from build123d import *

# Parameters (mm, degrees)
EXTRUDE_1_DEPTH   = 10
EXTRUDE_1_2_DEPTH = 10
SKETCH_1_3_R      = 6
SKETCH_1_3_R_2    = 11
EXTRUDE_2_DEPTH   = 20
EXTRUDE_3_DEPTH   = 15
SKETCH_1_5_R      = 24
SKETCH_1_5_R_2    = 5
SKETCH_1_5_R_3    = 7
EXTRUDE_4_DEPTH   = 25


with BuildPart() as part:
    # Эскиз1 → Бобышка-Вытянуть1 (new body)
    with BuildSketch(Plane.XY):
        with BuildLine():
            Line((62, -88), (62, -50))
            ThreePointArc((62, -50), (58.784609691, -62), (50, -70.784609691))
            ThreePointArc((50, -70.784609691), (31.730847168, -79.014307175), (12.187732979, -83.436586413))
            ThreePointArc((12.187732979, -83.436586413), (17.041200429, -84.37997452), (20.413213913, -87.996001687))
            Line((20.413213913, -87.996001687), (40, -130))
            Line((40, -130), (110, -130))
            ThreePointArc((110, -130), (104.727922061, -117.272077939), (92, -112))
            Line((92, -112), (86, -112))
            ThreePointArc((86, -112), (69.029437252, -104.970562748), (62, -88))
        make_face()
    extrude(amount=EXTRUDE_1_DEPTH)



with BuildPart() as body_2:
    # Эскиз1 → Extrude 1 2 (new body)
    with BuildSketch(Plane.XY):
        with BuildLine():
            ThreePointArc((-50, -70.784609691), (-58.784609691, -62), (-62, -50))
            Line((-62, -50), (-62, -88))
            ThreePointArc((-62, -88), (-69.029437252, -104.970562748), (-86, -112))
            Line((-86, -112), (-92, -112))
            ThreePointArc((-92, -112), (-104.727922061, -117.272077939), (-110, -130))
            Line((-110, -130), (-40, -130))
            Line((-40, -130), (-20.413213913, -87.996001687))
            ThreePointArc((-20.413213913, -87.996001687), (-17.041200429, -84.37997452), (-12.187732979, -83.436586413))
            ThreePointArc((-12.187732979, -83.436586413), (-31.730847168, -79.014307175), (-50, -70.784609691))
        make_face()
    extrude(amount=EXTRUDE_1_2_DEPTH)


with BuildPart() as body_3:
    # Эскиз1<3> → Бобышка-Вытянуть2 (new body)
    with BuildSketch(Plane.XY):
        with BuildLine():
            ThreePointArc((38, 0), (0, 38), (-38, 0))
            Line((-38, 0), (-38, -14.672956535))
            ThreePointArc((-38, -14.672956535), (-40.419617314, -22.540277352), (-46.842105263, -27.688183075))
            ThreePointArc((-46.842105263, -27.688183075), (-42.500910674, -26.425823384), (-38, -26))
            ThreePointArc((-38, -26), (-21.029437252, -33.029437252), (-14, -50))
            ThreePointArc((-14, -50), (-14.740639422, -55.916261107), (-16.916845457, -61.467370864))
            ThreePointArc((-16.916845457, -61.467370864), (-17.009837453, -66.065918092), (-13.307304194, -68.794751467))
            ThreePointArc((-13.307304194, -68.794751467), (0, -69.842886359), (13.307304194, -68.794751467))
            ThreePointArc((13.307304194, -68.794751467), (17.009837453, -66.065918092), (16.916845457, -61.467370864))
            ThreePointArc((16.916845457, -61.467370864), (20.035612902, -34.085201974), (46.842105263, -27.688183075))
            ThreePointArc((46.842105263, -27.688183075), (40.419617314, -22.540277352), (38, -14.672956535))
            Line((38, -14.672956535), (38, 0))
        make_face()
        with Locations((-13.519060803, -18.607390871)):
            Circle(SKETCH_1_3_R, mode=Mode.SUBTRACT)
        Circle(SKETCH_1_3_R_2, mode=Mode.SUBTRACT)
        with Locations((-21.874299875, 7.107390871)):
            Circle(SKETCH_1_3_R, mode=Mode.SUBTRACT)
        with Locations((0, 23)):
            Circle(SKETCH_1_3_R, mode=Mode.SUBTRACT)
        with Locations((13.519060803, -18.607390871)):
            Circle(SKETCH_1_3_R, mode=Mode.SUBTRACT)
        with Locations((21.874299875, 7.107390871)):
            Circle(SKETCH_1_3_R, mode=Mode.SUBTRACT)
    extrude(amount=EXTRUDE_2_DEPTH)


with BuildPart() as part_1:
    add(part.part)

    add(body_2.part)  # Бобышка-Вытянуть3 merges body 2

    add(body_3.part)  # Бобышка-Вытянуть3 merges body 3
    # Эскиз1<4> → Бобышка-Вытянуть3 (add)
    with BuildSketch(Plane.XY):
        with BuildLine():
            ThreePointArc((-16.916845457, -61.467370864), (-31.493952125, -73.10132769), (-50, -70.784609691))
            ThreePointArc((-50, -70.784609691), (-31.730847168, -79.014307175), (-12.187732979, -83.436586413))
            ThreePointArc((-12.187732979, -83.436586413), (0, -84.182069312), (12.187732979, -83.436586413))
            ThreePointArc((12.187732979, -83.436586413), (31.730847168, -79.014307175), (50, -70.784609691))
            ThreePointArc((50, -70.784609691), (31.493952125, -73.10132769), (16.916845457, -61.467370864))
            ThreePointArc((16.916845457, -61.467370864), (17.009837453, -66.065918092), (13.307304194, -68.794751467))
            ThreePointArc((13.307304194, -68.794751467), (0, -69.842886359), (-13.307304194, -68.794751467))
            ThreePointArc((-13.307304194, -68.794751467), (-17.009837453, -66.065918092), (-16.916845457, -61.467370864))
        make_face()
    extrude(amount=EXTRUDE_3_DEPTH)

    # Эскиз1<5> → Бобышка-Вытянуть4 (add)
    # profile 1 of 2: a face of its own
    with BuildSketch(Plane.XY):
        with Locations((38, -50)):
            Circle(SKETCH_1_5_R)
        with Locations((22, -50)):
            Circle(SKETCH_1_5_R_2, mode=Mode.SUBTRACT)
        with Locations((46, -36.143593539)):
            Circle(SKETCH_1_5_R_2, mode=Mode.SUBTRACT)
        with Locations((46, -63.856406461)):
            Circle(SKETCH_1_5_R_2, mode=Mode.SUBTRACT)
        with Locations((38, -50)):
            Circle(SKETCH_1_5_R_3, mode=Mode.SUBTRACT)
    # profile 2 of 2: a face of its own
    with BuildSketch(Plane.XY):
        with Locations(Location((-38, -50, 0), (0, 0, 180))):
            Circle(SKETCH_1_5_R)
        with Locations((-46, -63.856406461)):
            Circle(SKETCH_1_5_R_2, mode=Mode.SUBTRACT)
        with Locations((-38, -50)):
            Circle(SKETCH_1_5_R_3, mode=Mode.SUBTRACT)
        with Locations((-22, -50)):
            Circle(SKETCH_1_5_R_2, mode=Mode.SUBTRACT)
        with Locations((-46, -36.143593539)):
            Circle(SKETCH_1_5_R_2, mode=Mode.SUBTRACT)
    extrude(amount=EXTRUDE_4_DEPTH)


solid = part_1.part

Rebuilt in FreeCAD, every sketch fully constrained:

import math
import FreeCAD as App
import Part
import Sketcher
from FreeCAD import Vector
Q = App.Units.Quantity

doc = App.newDocument("Part")
body = doc.addObject("PartDesign::Body", "Body")

sketch1 = body.newObject("Sketcher::SketchObject", "Sketch")
sketch1.AttachmentSupport = (doc.getObject("XY_Plane"), [""])
sketch1.MapMode = "FlatFace"
sketch1.addGeometry([
    Part.LineSegment(Vector(62, -88, 0), Vector(62, -50, 0)),
    Part.ArcOfCircle(Part.Circle(Vector(38, -50, 0), Vector(0, 0, 1), 24), math.radians(-60), math.radians(0)),
    Part.ArcOfCircle(Part.Circle(Vector(0, 16, 0), Vector(0, 0, 1), 100), math.radians(-83), math.radians(-60)),
    Part.ArcOfCircle(Part.Circle(Vector(13, -91, 0), Vector(0, 0, 1), 8), math.radians(25), math.radians(97)),
    Part.LineSegment(Vector(20, -88, 0), Vector(40, -130, 0)),
    Part.LineSegment(Vector(40, -130, 0), Vector(110, -130, 0)),
    Part.ArcOfCircle(Part.Circle(Vector(92, -130, 0), Vector(0, 0, 1), 18), math.radians(0), math.radians(90)),
    Part.LineSegment(Vector(92, -112, 0), Vector(86, -112, 0)),
    Part.ArcOfCircle(Part.Circle(Vector(86, -88, 0), Vector(0, 0, 1), 24), math.radians(-180), math.radians(-90)),
], False)
sketch1.addConstraint([
    Sketcher.Constraint("Tangent", 0, 2, 1, 2),
    Sketcher.Constraint("Tangent", 1, 1, 2, 2),
    Sketcher.Constraint("Tangent", 2, 1, 3, 2),
    Sketcher.Constraint("Tangent", 3, 1, 4, 1),
    Sketcher.Constraint("Coincident", 4, 2, 5, 1),
    Sketcher.Constraint("Coincident", 5, 2, 6, 1),
    Sketcher.Constraint("Tangent", 6, 2, 7, 1),
    Sketcher.Constraint("Tangent", 7, 2, 8, 2),
    Sketcher.Constraint("Tangent", 8, 1, 0, 1),
    Sketcher.Constraint("Vertical", 0),
    Sketcher.Constraint("Horizontal", 5),
    Sketcher.Constraint("Horizontal", 7),
    Sketcher.Constraint("Equal", 1, 8),
    Sketcher.Constraint("PointOnObject", 2, 3, -2),
    Sketcher.Constraint("Horizontal", 6, 3, 4, 2),
    Sketcher.Constraint("Radius", 1, 24.0),
    Sketcher.Constraint("Radius", 2, 100.0),
    Sketcher.Constraint("Radius", 3, 8.0),
    Sketcher.Constraint("Radius", 6, 18.0),
    Sketcher.Constraint("DistanceX", 5, 1, 5, 2, 70.0),
    Sketcher.Constraint("DistanceX", 7, 2, 7, 1, 6.0),
    Sketcher.Constraint("DistanceY", 0, 1, 0, 2, 38.0),
    Sketcher.Constraint("Angle", 4, Q("-65 deg")),
    Sketcher.Constraint("DistanceX", -1, 1, 1, 3, 38.0),
    Sketcher.Constraint("DistanceY", 1, 3, -1, 1, 50.0),
])
pad1 = body.newObject("PartDesign::Pad", "Pad")
pad1.Profile = sketch1
pad1.Length = 10
body2 = doc.addObject("PartDesign::Body", "Body001")

sketch2 = body2.newObject("Sketcher::SketchObject", "Sketch001")
sketch2.AttachmentSupport = (doc.getObject("XY_Plane001"), [""])
sketch2.MapMode = "FlatFace"
sketch2.addGeometry([
    Part.ArcOfCircle(Part.Circle(Vector(-38, -50, 0), Vector(0, 0, 1), 24), math.radians(180), math.radians(240)),
    Part.LineSegment(Vector(-62, -50, 0), Vector(-62, -88, 0)),
    Part.ArcOfCircle(Part.Circle(Vector(-86, -88, 0), Vector(0, 0, 1), 24), math.radians(-90), math.radians(0)),
    Part.LineSegment(Vector(-86, -112, 0), Vector(-92, -112, 0)),
    Part.ArcOfCircle(Part.Circle(Vector(-92, -130, 0), Vector(0, 0, 1), 18), math.radians(90), math.radians(180)),
    Part.LineSegment(Vector(-110, -130, 0), Vector(-40, -130, 0)),
    Part.LineSegment(Vector(-40, -130, 0), Vector(-20, -88, 0)),
    Part.ArcOfCircle(Part.Circle(Vector(-13, -91, 0), Vector(0, 0, 1), 8), math.radians(83), math.radians(155)),
    Part.ArcOfCircle(Part.Circle(Vector(0, 16, 0), Vector(0, 0, 1), 100), math.radians(-120), math.radians(-97)),
], False)
sketch2.addConstraint([
    Sketcher.Constraint("Tangent", 0, 1, 1, 1),
    Sketcher.Constraint("Tangent", 1, 2, 2, 2),
    Sketcher.Constraint("Tangent", 2, 1, 3, 1),
    Sketcher.Constraint("Tangent", 3, 2, 4, 1),
    Sketcher.Constraint("Coincident", 4, 2, 5, 1),
    Sketcher.Constraint("Coincident", 5, 2, 6, 1),
    Sketcher.Constraint("Tangent", 6, 2, 7, 2),
    Sketcher.Constraint("Tangent", 7, 1, 8, 2),
    Sketcher.Constraint("Tangent", 8, 1, 0, 2),
    Sketcher.Constraint("Vertical", 1),
    Sketcher.Constraint("Horizontal", 3),
    Sketcher.Constraint("Horizontal", 5),
    Sketcher.Constraint("Equal", 0, 2),
    Sketcher.Constraint("PointOnObject", 8, 3, -2),
    Sketcher.Constraint("Radius", 0, 24.0),
    Sketcher.Constraint("Radius", 4, 18.0),
    Sketcher.Constraint("Radius", 7, 8.0),
    Sketcher.Constraint("Radius", 8, 100.0),
    Sketcher.Constraint("DistanceX", 3, 2, 3, 1, 6.0),
    Sketcher.Constraint("DistanceX", 5, 1, 5, 2, 70.0),
    Sketcher.Constraint("DistanceY", 1, 2, 1, 1, 38.0),
    Sketcher.Constraint("Angle", 6, Q("65 deg")),
    Sketcher.Constraint("DistanceX", 0, 3, -1, 1, 38.0),
    Sketcher.Constraint("DistanceY", 0, 3, -1, 1, 50.0),
    Sketcher.Constraint("DistanceY", 4, 2, -1, 1, 130.0),
])
pad2 = body2.newObject("PartDesign::Pad", "Pad001")
pad2.Profile = sketch2
pad2.Length = 10
body3 = doc.addObject("PartDesign::Body", "Body002")

sketch3 = body3.newObject("Sketcher::SketchObject", "Sketch002")
sketch3.AttachmentSupport = (doc.getObject("XY_Plane002"), [""])
sketch3.MapMode = "FlatFace"
sketch3.addGeometry([
    Part.ArcOfCircle(Part.Circle(Vector(0, 0, 0), Vector(0, 0, 1), 38), math.radians(0), math.radians(180)),
    Part.LineSegment(Vector(-38, 0, 0), Vector(-38, -14.7, 0)),
    Part.ArcOfCircle(Part.Circle(Vector(-52, -14.7, 0), Vector(0, 0, 1), 14), math.radians(-68), math.radians(0)),
    Part.ArcOfCircle(Part.Circle(Vector(-38, -50, 0), Vector(0, 0, 1), 24), math.radians(90), math.radians(112)),
    Part.ArcOfCircle(Part.Circle(Vector(-38, -50, 0), Vector(0, 0, 1), 24), math.radians(0), math.radians(90)),
    Part.ArcOfCircle(Part.Circle(Vector(-38, -50, 0), Vector(0, 0, 1), 24), math.radians(-29), math.radians(0)),
    Part.ArcOfCircle(Part.Circle(Vector(-12.5, -63.9, 0), Vector(0, 0, 1), 5), math.radians(151), math.radians(261)),
    Part.ArcOfCircle(Part.Circle(Vector(0, 15.2, 0), Vector(0, 0, 1), 85), math.radians(-99.01), math.radians(-80.99)),
    Part.ArcOfCircle(Part.Circle(Vector(12.5, -63.9, 0), Vector(0, 0, 1), 5), math.radians(-81), math.radians(29)),
    Part.ArcOfCircle(Part.Circle(Vector(38, -50, 0), Vector(0, 0, 1), 24), math.radians(68), math.radians(209)),
    Part.ArcOfCircle(Part.Circle(Vector(52, -14.7, 0), Vector(0, 0, 1), 14), math.radians(-180), math.radians(-112)),
    Part.LineSegment(Vector(38, -14.7, 0), Vector(38, 0, 0)),
    Part.Circle(Vector(-13.5, -18.6, 0), Vector(0, 0, 1), 6),
    Part.Circle(Vector(0, 0, 0), Vector(0, 0, 1), 11),
    Part.Circle(Vector(13.5, -18.6, 0), Vector(0, 0, 1), 6),
    Part.Circle(Vector(-21.9, 7.1, 0), Vector(0, 0, 1), 6),
    Part.Circle(Vector(0, 23, 0), Vector(0, 0, 1), 6),
    Part.Circle(Vector(21.9, 7.1, 0), Vector(0, 0, 1), 6),
], False)
sketch3.addConstraint([
    Sketcher.Constraint("Tangent", 0, 2, 1, 1),
    Sketcher.Constraint("Tangent", 1, 2, 2, 2),
    Sketcher.Constraint("Tangent", 2, 1, 3, 2),
    Sketcher.Constraint("Tangent", 3, 1, 4, 2),
    Sketcher.Constraint("Tangent", 4, 1, 5, 2),
    Sketcher.Constraint("Tangent", 5, 1, 6, 1),
    Sketcher.Constraint("Tangent", 6, 2, 7, 1),
    Sketcher.Constraint("Tangent", 7, 2, 8, 1),
    Sketcher.Constraint("Tangent", 8, 2, 9, 2),
    Sketcher.Constraint("Tangent", 9, 1, 10, 2),
    Sketcher.Constraint("Tangent", 10, 1, 11, 1),
    Sketcher.Constraint("Tangent", 11, 2, 0, 1),
    Sketcher.Constraint("Vertical", 1),
    Sketcher.Constraint("Vertical", 11),
    Sketcher.Constraint("Coincident", 0, 3, -1, 1),
    Sketcher.Constraint("Coincident", 13, 3, -1, 1),
    Sketcher.Constraint("Coincident", 5, 3, 3, 3),
    Sketcher.Constraint("Equal", 6, 8),
    Sketcher.Constraint("Equal", 5, 9),
    Sketcher.Constraint("Equal", 2, 10),
    Sketcher.Constraint("Equal", 12, 14),
    Sketcher.Constraint("Equal", 14, 15),
    Sketcher.Constraint("Equal", 15, 16),
    Sketcher.Constraint("Equal", 16, 17),
    Sketcher.Constraint("Symmetric", 6, 3, 8, 3, -2),
    Sketcher.Constraint("Symmetric", 12, 3, 14, 3, -2),
    Sketcher.Constraint("Symmetric", 15, 3, 17, 3, -2),
    Sketcher.Constraint("PointOnObject", 16, 3, -2),
    Sketcher.Constraint("Horizontal", 5, 3, 9, 3),
    Sketcher.Constraint("Horizontal", 9, 3, 4, 1),
    Sketcher.Constraint("Vertical", 5, 3, 0, 2),
    Sketcher.Constraint("Vertical", 1, 2, 3, 1),
    Sketcher.Constraint("Diameter", 12, 12.0),
    Sketcher.Constraint("Diameter", 13, 22.0),
    Sketcher.Constraint("Radius", 0, 38.0),
    Sketcher.Constraint("Radius", 2, 14.0),
    Sketcher.Constraint("Radius", 3, 24.0),
    Sketcher.Constraint("Radius", 6, 5.0),
    Sketcher.Constraint("Radius", 7, 85.0),
    Sketcher.Constraint("DistanceY", 3, 3, -1, 1, 50.0),
    Sketcher.Constraint("DistanceY", -1, 1, 16, 3, 23.0),
    Sketcher.Constraint("DistanceX", 15, 3, -1, 1, 21.8743),
    Sketcher.Constraint("DistanceX", 6, 3, -1, 1, 12.524522),
    Sketcher.Constraint("DistanceX", 12, 3, -1, 1, 13.519061),
    Sketcher.Constraint("DistanceY", 12, 3, -1, 1, 18.607391),
    Sketcher.Constraint("DistanceY", -1, 1, 15, 3, 7.107391),
])
pad3 = body3.newObject("PartDesign::Pad", "Pad002")
pad3.Profile = sketch3
pad3.Length = 20
body.AllowCompound = True
doc.recompute()

boolean = body.newObject("PartDesign::Boolean", "Boolean")
boolean.Type = "Fuse"
boolean.addObjects([body2])
doc.recompute()

boolean2 = body.newObject("PartDesign::Boolean", "Boolean001")
boolean2.Type = "Fuse"
boolean2.addObjects([body3])

sketch4 = body.newObject("Sketcher::SketchObject", "Sketch003")
sketch4.AttachmentSupport = (doc.getObject("XY_Plane"), [""])
sketch4.MapMode = "FlatFace"
sketch4.addGeometry([
    Part.ArcOfCircle(Part.Circle(Vector(-38, -50, 0), Vector(0, 0, 1), 24), math.radians(-120), math.radians(-29)),
    Part.ArcOfCircle(Part.Circle(Vector(0, 15.8, 0), Vector(0, 0, 1), 100), math.radians(-120), math.radians(-97)),
    Part.ArcOfCircle(Part.Circle(Vector(0, 15.8, 0), Vector(0, 0, 1), 100), math.radians(-97), math.radians(-83)),
    Part.ArcOfCircle(Part.Circle(Vector(0, 15.8, 0), Vector(0, 0, 1), 100), math.radians(-83), math.radians(-60)),
    Part.ArcOfCircle(Part.Circle(Vector(38, -50, 0), Vector(0, 0, 1), 24), math.radians(-151), math.radians(-60)),
    Part.ArcOfCircle(Part.Circle(Vector(12.5, -63.9, 0), Vector(0, 0, 1), 5), math.radians(-81), math.radians(29)),
    Part.ArcOfCircle(Part.Circle(Vector(0, 15.2, 0), Vector(0, 0, 1), 85), math.radians(-99.01), math.radians(-80.99)),
    Part.ArcOfCircle(Part.Circle(Vector(-12.5, -63.9, 0), Vector(0, 0, 1), 5), math.radians(151), math.radians(261)),
], False)
sketch4.addConstraint([
    Sketcher.Constraint("Tangent", 0, 1, 1, 1),
    Sketcher.Constraint("Tangent", 1, 2, 2, 1),
    Sketcher.Constraint("Tangent", 2, 2, 3, 1),
    Sketcher.Constraint("Tangent", 3, 2, 4, 2),
    Sketcher.Constraint("Tangent", 4, 1, 5, 2),
    Sketcher.Constraint("Tangent", 5, 1, 6, 2),
    Sketcher.Constraint("Tangent", 6, 1, 7, 2),
    Sketcher.Constraint("Tangent", 7, 1, 0, 2),
    Sketcher.Constraint("Coincident", 3, 3, 1, 3),
    Sketcher.Constraint("Equal", 0, 4),
    Sketcher.Constraint("Equal", 5, 7),
    Sketcher.Constraint("Symmetric", 0, 3, 4, 3, -2),
    Sketcher.Constraint("PointOnObject", 6, 3, -2),
    Sketcher.Constraint("Horizontal", 1, 2, 2, 2),
    Sketcher.Constraint("Radius", 0, 24.0),
    Sketcher.Constraint("Radius", 1, 100.0),
    Sketcher.Constraint("Radius", 5, 5.0),
    Sketcher.Constraint("Radius", 6, 85.0),
    Sketcher.Constraint("DistanceX", 0, 3, -1, 1, 38.0),
    Sketcher.Constraint("DistanceY", 0, 3, -1, 1, 50.0),
    Sketcher.Constraint("DistanceX", -1, 1, 5, 3, 12.524522),
    Sketcher.Constraint("DistanceX", 7, 3, 1, 2, 0.336789),
])
pad4 = body.newObject("PartDesign::Pad", "Pad003")
pad4.Profile = sketch4
pad4.Length = 15

sketch5 = body.newObject("Sketcher::SketchObject", "Sketch004")
sketch5.AttachmentSupport = (doc.getObject("XY_Plane"), [""])
sketch5.MapMode = "FlatFace"
sketch5.addGeometry([
    Part.Circle(Vector(38, -50, 0), Vector(0, 0, 1), 24),
    Part.Circle(Vector(46, -64, 0), Vector(0, 0, 1), 5),
    Part.Circle(Vector(22, -50, 0), Vector(0, 0, 1), 5),
    Part.Circle(Vector(38, -50, 0), Vector(0, 0, 1), 7),
    Part.Circle(Vector(46, -36, 0), Vector(0, 0, 1), 5),
    Part.Circle(Vector(-38, -50, 0), Vector(0, 0, 1), 24),
    Part.Circle(Vector(-22, -50, 0), Vector(0, 0, 1), 5),
    Part.Circle(Vector(-46, -36, 0), Vector(0, 0, 1), 5),
    Part.Circle(Vector(-38, -50, 0), Vector(0, 0, 1), 7),
    Part.Circle(Vector(-46, -64, 0), Vector(0, 0, 1), 5),
], False)
sketch5.addConstraint([
    Sketcher.Constraint("Coincident", 3, 3, 0, 3),
    Sketcher.Constraint("Coincident", 8, 3, 5, 3),
    Sketcher.Constraint("Equal", 1, 2),
    Sketcher.Constraint("Equal", 2, 4),
    Sketcher.Constraint("Equal", 0, 5),
    Sketcher.Constraint("Equal", 4, 6),
    Sketcher.Constraint("Equal", 6, 7),
    Sketcher.Constraint("Equal", 3, 8),
    Sketcher.Constraint("Equal", 7, 9),
    Sketcher.Constraint("Symmetric", 0, 3, 5, 3, -2),
    Sketcher.Constraint("Symmetric", 2, 3, 6, 3, -2),
    Sketcher.Constraint("Symmetric", 4, 3, 7, 3, -2),
    Sketcher.Constraint("Symmetric", 1, 3, 9, 3, -2),
    Sketcher.Constraint("Horizontal", 0, 3, 2, 3),
    Sketcher.Constraint("Vertical", 1, 3, 4, 3),
    Sketcher.Constraint("Diameter", 0, 48.0),
    Sketcher.Constraint("Diameter", 1, 10.0),
    Sketcher.Constraint("Diameter", 3, 14.0),
    Sketcher.Constraint("DistanceX", -1, 1, 0, 3, 38.0),
    Sketcher.Constraint("DistanceY", 0, 3, -1, 1, 50.0),
    Sketcher.Constraint("DistanceX", -1, 1, 1, 3, 46.0),
    Sketcher.Constraint("DistanceX", -1, 1, 2, 3, 22.0),
    Sketcher.Constraint("DistanceY", 1, 3, -1, 1, 63.856406),
    Sketcher.Constraint("DistanceY", 4, 3, -1, 1, 36.143594),
])
pad5 = body.newObject("PartDesign::Pad", "Pad004")
pad5.Profile = sketch5
pad5.Length = 25

doc.recompute()
